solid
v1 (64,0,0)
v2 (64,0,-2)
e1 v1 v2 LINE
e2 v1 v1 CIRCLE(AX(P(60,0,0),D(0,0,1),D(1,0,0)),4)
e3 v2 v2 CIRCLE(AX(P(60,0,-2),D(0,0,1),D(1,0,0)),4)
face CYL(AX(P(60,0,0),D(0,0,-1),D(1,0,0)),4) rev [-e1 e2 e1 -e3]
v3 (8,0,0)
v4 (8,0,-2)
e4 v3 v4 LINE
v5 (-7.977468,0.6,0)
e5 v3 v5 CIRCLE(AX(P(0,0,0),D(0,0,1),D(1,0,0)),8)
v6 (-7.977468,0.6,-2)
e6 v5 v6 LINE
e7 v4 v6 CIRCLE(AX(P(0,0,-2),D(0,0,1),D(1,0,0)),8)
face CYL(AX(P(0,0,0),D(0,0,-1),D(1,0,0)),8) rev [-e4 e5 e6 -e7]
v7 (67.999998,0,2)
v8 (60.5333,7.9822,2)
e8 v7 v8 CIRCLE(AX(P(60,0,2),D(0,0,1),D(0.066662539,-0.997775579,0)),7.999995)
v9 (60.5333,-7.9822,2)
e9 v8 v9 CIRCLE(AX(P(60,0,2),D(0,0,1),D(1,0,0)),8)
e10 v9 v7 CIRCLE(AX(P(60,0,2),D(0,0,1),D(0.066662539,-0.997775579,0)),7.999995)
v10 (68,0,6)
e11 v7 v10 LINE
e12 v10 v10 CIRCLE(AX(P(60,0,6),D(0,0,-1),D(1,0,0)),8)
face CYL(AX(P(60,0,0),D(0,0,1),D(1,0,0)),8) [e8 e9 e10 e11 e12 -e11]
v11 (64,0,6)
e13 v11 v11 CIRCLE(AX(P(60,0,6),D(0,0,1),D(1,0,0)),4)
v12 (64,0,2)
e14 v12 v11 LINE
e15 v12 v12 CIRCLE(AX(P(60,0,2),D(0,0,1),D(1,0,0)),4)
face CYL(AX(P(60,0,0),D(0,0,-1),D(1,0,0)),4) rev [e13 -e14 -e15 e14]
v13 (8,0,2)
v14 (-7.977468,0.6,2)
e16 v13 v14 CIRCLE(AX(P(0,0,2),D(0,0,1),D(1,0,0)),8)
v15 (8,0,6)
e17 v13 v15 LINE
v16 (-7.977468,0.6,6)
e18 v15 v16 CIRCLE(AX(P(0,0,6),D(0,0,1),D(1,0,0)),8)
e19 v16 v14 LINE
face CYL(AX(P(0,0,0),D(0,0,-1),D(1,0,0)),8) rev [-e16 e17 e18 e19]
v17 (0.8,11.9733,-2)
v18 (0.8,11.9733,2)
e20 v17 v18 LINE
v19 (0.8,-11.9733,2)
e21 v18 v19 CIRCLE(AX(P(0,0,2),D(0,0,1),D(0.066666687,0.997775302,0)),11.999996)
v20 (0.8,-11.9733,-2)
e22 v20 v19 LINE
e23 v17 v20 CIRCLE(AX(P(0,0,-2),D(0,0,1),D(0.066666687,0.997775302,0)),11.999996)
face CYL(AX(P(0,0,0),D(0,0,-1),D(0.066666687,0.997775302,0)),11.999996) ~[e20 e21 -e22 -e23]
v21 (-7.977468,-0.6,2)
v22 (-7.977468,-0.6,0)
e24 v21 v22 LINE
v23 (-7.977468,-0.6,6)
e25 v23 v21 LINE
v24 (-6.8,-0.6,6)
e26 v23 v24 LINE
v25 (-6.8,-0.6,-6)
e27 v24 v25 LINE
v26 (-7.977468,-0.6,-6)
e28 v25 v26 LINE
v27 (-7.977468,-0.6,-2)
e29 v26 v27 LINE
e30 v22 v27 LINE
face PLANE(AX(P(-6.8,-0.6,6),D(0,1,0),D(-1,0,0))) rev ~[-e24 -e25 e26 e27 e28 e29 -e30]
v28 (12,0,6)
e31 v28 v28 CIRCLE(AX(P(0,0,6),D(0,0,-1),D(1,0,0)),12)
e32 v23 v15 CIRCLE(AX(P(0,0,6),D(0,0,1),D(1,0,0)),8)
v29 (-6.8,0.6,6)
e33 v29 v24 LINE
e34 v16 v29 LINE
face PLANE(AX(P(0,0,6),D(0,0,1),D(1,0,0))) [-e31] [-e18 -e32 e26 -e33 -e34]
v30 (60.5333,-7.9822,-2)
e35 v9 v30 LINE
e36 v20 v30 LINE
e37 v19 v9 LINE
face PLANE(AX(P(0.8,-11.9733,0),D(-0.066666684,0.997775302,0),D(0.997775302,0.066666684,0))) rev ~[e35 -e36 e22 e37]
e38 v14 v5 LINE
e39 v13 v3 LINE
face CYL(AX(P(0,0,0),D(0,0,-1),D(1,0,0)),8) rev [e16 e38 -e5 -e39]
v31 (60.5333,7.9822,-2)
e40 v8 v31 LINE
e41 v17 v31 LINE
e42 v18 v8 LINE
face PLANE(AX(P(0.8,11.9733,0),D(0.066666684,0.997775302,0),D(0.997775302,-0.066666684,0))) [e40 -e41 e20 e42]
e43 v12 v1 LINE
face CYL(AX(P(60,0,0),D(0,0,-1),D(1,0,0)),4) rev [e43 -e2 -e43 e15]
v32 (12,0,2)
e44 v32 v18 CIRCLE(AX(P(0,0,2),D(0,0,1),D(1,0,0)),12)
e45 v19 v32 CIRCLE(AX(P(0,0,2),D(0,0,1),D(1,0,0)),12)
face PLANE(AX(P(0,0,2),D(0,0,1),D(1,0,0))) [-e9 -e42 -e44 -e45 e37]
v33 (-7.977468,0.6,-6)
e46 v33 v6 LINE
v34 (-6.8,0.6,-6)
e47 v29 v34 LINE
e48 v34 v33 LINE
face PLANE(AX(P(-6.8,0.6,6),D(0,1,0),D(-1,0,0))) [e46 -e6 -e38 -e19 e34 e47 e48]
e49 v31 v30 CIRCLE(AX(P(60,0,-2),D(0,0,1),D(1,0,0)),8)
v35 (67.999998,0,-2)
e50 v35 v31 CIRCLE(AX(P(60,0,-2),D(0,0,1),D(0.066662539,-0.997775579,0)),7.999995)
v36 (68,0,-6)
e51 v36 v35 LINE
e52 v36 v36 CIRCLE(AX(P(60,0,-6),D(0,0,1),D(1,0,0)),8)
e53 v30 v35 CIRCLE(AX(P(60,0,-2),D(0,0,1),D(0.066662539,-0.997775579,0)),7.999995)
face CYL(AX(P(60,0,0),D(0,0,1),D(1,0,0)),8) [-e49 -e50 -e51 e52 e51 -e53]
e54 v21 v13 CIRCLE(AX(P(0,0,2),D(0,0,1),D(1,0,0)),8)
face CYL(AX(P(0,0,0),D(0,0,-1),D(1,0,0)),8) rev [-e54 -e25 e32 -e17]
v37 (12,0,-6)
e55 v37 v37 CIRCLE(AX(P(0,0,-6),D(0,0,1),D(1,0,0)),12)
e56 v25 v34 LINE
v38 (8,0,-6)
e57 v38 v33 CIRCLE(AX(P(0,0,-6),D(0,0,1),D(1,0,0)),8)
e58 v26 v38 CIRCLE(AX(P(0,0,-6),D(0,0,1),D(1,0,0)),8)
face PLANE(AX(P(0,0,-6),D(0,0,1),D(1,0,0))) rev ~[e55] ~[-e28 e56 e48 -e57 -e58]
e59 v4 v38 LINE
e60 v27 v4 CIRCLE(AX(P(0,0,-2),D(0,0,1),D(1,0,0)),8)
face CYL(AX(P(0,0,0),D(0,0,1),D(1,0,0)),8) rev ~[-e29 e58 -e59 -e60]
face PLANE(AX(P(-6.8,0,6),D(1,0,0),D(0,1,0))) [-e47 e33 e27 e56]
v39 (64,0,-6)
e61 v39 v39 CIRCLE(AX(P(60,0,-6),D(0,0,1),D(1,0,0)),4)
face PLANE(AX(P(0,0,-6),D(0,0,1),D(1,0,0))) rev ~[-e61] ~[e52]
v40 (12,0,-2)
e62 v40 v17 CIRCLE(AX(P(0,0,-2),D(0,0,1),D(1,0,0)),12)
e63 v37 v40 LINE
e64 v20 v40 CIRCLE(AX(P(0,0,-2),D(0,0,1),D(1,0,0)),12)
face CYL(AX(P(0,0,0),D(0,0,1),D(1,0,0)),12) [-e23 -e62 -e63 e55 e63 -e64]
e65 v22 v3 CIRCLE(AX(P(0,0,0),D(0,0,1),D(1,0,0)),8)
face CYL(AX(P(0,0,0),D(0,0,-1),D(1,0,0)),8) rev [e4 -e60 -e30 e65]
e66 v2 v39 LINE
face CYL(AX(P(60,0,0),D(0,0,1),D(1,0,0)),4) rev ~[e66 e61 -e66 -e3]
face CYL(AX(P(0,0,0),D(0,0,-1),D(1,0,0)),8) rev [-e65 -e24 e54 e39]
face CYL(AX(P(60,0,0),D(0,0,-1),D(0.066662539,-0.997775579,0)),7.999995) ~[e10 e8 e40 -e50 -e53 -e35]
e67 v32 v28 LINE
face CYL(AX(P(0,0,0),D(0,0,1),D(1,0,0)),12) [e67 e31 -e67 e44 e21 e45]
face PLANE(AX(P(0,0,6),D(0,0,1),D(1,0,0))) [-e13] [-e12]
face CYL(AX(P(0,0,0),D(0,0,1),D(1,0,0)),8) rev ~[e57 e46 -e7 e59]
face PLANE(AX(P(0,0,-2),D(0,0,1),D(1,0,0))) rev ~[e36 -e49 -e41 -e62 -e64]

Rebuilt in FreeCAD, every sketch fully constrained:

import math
import FreeCAD as App
import Part
import Sketcher
Q = App.Units.Quantity


def add_polygon(sketch, points):
    """Adds a closed chain of lines whose ends are joined by coincident constraints."""
    first, n = sketch.GeometryCount, len(points)
    for a, b in zip(points, points[1:] + points[:1]):
        sketch.addGeometry(Part.LineSegment(App.Vector(*a, 0), App.Vector(*b, 0)), False)
    for i in range(n):
        sketch.addConstraint(Sketcher.Constraint("Coincident", first + i, 2, first + (i + 1) % n, 1))

doc = App.newDocument("Part")
body = doc.addObject("PartDesign::Body", "Body")

# Sketch on XY plane
sketch1 = body.newObject("Sketcher::SketchObject", "Sketch")
sketch1.AttachmentSupport = (doc.getObject("XY_Plane"), [""])
sketch1.MapMode = "FlatFace"
sketch1.addGeometry([
    Part.LineSegment(App.Vector(60.5, 8, 0), App.Vector(0.8, 12, 0)),  # 0
    Part.ArcOfCircle(Part.Circle(App.Vector(0, 0, 0), App.Vector(0, 0, 1), 12), math.radians(86), math.radians(274)),  # 1
    Part.LineSegment(App.Vector(0.8, -12, 0), App.Vector(60.5, -8, 0)),  # 2
    Part.ArcOfCircle(Part.Circle(App.Vector(60, 0, 0), App.Vector(0, 0, 1), 8), math.radians(-86), math.radians(86)),  # 3
    Part.Circle(App.Vector(0, 0, 0), App.Vector(0, 0, 1), 8),  # 4
    Part.Circle(App.Vector(60, 0, 0), App.Vector(0, 0, 1), 4),  # 5
], False)
sketch1.addConstraint([
    Sketcher.Constraint("Tangent", 0, 2, 1, 1),
    Sketcher.Constraint("Tangent", 1, 2, 2, 1),
    Sketcher.Constraint("Tangent", 2, 2, 3, 1),
    Sketcher.Constraint("Tangent", 3, 2, 0, 1),
    Sketcher.Constraint("Coincident", 1, 3, -1, 1),
    Sketcher.Constraint("Coincident", 4, 3, -1, 1),
    Sketcher.Constraint("Coincident", 5, 3, 3, 3),
    Sketcher.Constraint("Equal", 3, 4),
    Sketcher.Constraint("PointOnObject", 3, 3, -1),
    Sketcher.Constraint("Diameter", 4, Q("16 mm")),
    Sketcher.Constraint("Diameter", 5, Q("8 mm")),
    Sketcher.Constraint("Radius", 1, Q("12 mm")),
    Sketcher.Constraint("DistanceX", -1, 1, 3, 3, Q("60 mm")),
])
pad1 = body.newObject("PartDesign::Pad", "Pad")
pad1.Profile = sketch1
pad1.Length = 4
pad1.Midplane = True

# Sketch on XY plane
sketch2 = body.newObject("Sketcher::SketchObject", "Sketch001")
sketch2.AttachmentSupport = (doc.getObject("XY_Plane"), [""])
sketch2.MapMode = "FlatFace"
sketch2.addGeometry([
    Part.Circle(App.Vector(0, 0, 0), App.Vector(0, 0, 1), 12),
    Part.Circle(App.Vector(0, 0, 0), App.Vector(0, 0, 1), 8),
    Part.Circle(App.Vector(60, 0, 0), App.Vector(0, 0, 1), 8),
    Part.Circle(App.Vector(60, 0, 0), App.Vector(0, 0, 1), 4),
], False)
sketch2.addConstraint([
    Sketcher.Constraint("Coincident", 0, 3, -1, 1),
    Sketcher.Constraint("Coincident", 1, 3, -1, 1),
    Sketcher.Constraint("Coincident", 3, 3, 2, 3),
    Sketcher.Constraint("Equal", 1, 2),
    Sketcher.Constraint("PointOnObject", 2, 3, -1),
    Sketcher.Constraint("Diameter", 0, Q("24 mm")),
    Sketcher.Constraint("Diameter", 1, Q("16 mm")),
    Sketcher.Constraint("Diameter", 3, Q("8 mm")),
    Sketcher.Constraint("DistanceX", -1, 1, 2, 3, Q("60 mm")),
])
pad2 = body.newObject("PartDesign::Pad", "Pad001")
pad2.Profile = sketch2
pad2.Length = 12
pad2.Midplane = True

# Sketch on XY plane
sketch3 = body.newObject("Sketcher::SketchObject", "Sketch002")
sketch3.AttachmentSupport = (doc.getObject("XY_Plane"), [""])
sketch3.MapMode = "FlatFace"
sketch3.AttachmentOffset = App.Placement(App.Vector(0, 0, 6), App.Rotation())
add_polygon(sketch3, [(-6.8, 0.6), (-8, 0.6), (-8, -0.6), (-6.8, -0.6)])  # lines 0-3
sketch3.addConstraint([
    Sketcher.Constraint("Horizontal", 0),
    Sketcher.Constraint("Vertical", 1),
    Sketcher.Constraint("Horizontal", 2),
    Sketcher.Constraint("Vertical", 3),
    Sketcher.Constraint("Equal", 2, 1),
    Sketcher.Constraint("DistanceX", 0, 2, 0, 1, Q("1.2 mm")),
    Sketcher.Constraint("DistanceY", -1, 1, 0, 2, Q("0.6 mm")),
    Sketcher.Constraint("DistanceX", 0, 2, -1, 1, Q("8 mm")),
])
pad3 = body.newObject("PartDesign::Pad", "Pad002")
pad3.Profile = sketch3
pad3.Length = 12
pad3.Reversed = True

doc.recompute()
